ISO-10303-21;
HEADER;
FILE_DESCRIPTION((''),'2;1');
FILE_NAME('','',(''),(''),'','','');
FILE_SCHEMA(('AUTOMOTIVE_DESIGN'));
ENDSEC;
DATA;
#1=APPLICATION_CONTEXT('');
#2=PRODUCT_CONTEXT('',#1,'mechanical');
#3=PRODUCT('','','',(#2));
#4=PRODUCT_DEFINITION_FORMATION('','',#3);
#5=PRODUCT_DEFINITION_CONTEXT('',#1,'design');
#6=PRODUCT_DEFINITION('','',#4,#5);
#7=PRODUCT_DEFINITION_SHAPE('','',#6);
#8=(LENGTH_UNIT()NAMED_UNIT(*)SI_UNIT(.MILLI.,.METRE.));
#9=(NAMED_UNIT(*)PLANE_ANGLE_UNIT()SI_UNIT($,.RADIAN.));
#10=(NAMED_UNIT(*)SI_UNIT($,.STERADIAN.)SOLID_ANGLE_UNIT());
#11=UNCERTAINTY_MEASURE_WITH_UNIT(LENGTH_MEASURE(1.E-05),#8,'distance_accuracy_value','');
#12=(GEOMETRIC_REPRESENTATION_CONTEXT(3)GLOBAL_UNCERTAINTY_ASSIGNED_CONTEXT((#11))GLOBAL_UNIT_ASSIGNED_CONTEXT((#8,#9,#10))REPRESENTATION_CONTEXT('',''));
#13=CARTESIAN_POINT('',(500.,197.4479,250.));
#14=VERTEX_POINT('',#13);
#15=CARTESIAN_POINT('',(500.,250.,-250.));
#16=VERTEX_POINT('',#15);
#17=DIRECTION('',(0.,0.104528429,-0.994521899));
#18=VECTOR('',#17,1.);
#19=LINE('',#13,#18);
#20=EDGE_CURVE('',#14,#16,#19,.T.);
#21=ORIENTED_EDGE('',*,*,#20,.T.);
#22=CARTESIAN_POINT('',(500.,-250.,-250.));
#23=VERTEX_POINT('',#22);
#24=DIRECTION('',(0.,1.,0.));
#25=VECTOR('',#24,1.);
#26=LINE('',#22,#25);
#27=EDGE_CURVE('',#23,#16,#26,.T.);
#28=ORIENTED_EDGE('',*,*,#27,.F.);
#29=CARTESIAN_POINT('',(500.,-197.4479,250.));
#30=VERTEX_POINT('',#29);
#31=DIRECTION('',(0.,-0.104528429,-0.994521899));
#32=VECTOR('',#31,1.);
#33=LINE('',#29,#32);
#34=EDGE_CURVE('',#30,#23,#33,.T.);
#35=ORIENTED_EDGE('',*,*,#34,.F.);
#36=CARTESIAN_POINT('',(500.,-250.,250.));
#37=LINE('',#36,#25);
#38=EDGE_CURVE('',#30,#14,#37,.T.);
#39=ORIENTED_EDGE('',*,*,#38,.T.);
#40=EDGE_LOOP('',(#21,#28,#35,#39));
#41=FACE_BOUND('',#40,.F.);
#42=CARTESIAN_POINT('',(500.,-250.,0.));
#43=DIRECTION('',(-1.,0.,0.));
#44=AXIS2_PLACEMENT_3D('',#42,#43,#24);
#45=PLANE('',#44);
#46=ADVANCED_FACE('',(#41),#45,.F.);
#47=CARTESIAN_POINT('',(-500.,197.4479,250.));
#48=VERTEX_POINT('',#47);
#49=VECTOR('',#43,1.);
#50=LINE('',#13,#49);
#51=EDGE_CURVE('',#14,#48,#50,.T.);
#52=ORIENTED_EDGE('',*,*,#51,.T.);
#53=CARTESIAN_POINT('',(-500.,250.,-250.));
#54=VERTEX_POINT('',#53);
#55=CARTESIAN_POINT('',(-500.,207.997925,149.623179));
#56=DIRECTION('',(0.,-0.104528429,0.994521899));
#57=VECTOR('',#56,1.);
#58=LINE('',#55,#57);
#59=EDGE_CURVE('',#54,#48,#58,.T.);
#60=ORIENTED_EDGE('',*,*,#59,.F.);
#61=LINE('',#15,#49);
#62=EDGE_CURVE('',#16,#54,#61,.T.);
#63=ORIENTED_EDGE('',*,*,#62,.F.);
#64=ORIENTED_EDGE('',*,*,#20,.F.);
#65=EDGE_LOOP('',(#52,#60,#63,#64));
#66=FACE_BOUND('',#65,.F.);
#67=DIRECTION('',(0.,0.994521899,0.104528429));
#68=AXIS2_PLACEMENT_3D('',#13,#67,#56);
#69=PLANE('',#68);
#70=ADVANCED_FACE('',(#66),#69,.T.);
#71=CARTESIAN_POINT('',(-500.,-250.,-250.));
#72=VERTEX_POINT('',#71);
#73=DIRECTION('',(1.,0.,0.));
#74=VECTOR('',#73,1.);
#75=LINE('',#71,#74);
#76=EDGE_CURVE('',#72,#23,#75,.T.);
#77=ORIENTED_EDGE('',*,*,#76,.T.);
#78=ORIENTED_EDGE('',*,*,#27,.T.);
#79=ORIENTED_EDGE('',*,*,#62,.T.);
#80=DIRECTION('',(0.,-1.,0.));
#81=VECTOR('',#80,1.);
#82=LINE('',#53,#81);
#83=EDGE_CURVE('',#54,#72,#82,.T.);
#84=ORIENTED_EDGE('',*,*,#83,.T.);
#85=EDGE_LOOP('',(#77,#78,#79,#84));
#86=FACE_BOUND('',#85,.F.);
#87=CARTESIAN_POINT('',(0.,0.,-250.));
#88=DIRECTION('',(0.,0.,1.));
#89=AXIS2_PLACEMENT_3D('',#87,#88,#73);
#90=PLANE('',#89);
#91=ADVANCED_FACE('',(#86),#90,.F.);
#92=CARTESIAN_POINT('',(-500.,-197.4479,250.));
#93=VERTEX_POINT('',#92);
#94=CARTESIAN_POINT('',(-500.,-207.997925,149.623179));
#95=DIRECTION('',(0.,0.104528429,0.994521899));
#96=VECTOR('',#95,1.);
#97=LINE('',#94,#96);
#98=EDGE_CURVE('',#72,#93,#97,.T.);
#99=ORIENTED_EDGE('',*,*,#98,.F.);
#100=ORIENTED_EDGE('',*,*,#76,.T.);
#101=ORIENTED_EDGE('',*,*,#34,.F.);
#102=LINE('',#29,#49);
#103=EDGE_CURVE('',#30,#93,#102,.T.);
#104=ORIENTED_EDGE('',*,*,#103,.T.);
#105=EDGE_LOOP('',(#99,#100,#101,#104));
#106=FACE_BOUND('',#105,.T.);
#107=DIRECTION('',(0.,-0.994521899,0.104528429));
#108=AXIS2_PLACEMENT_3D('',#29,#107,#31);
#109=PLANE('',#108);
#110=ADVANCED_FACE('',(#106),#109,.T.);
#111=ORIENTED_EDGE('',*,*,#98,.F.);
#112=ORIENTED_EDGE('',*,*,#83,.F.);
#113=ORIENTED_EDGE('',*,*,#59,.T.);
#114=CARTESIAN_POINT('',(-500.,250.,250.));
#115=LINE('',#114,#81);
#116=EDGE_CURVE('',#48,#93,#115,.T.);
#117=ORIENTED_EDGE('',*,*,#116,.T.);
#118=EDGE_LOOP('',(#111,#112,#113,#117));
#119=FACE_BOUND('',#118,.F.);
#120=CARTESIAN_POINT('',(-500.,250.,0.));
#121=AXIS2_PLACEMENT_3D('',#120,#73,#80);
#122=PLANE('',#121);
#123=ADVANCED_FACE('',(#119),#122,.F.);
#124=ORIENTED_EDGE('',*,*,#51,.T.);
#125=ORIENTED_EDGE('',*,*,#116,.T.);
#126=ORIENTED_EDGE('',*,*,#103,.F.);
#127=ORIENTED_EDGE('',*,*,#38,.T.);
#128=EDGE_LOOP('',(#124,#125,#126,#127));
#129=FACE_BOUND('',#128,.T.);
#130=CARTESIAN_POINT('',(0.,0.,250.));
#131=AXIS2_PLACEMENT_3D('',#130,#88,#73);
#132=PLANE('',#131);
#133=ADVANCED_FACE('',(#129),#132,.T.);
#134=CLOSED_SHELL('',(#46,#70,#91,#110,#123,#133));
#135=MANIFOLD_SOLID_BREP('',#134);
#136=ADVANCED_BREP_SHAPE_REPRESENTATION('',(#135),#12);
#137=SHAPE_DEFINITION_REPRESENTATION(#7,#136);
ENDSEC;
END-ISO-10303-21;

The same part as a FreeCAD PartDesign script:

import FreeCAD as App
import Part
import Sketcher

V = App.Vector
Q = App.Units.Quantity

doc = App.newDocument("Part")
body = doc.addObject("PartDesign::Body", "Body")

sketch1 = body.newObject("Sketcher::SketchObject", "Sketch")
sketch1.AttachmentSupport = (doc.getObject("XY_Plane"), [""])
sketch1.MapMode = "FlatFace"
sketch1.addGeometry(Part.LineSegment(V(-500, 250, 0), V(-500, -250, 0)), False)
sketch1.addGeometry(Part.LineSegment(V(-500, -250, 0), V(500, -250, 0)), False)
sketch1.addGeometry(Part.LineSegment(V(500, -250, 0), V(500, 250, 0)), False)
sketch1.addGeometry(Part.LineSegment(V(500, 250, 0), V(-500, 250, 0)), False)
sketch1.addConstraint(Sketcher.Constraint("Coincident", 0, 2, 1, 1))
sketch1.addConstraint(Sketcher.Constraint("Coincident", 1, 2, 2, 1))
sketch1.addConstraint(Sketcher.Constraint("Coincident", 2, 2, 3, 1))
sketch1.addConstraint(Sketcher.Constraint("Coincident", 3, 2, 0, 1))
sketch1.addConstraint(Sketcher.Constraint("Vertical", 0))
sketch1.addConstraint(Sketcher.Constraint("Horizontal", 1))
sketch1.addConstraint(Sketcher.Constraint("Vertical", 2))
sketch1.addConstraint(Sketcher.Constraint("Horizontal", 3))
sketch1.addConstraint(Sketcher.Constraint("Symmetric", 0, 2, 2, 2, -1, 1))
sketch1.addConstraint(Sketcher.Constraint("DistanceX", 1, 1, 1, 2, 1000.0))
sketch1.addConstraint(Sketcher.Constraint("DistanceY", 0, 2, 0, 1, 500.0))
pad1 = body.newObject("PartDesign::Pad", "Pad")
pad1.Profile = sketch1
pad1.Length = 500
pad1.Midplane = True

sketch2 = body.newObject("Sketcher::SketchObject", "Sketch001")
sketch2.AttachmentSupport = (doc.getObject("YZ_Plane"), [""])
sketch2.MapMode = "FlatFace"
sketch2.AttachmentOffset = App.Placement(V(0, 0, 500), App.Rotation())
sketch2.addGeometry(Part.LineSegment(V(-250, -250, 0), V(-197, 250, 0)), False)
sketch2.addGeometry(Part.LineSegment(V(-197, 250, 0), V(-250, 250, 0)), False)
sketch2.addGeometry(Part.LineSegment(V(-250, 250, 0), V(-250, -250, 0)), False)
sketch2.addConstraint(Sketcher.Constraint("Coincident", 0, 2, 1, 1))
sketch2.addConstraint(Sketcher.Constraint("Coincident", 1, 2, 2, 1))
sketch2.addConstraint(Sketcher.Constraint("Coincident", 2, 2, 0, 1))
sketch2.addConstraint(Sketcher.Constraint("Horizontal", 1))
sketch2.addConstraint(Sketcher.Constraint("Vertical", 2))
sketch2.addConstraint(Sketcher.Constraint("DistanceY", 2, 2, 2, 1, 500.0))
sketch2.addConstraint(Sketcher.Constraint("Angle", 0, Q("84 deg")))
sketch2.addConstraint(Sketcher.Constraint("DistanceY", -1, 1, 0, 2, 250.0))
sketch2.addConstraint(Sketcher.Constraint("DistanceX", 1, 2, -1, 1, 250.0))
pocket1 = body.newObject("PartDesign::Pocket", "Pocket")
pocket1.Profile = sketch2
pocket1.Type = "UpToFirst"
doc.recompute()

mirrored = body.newObject("PartDesign::Mirrored", "Mirrored")
mirrored.Originals = [pocket1]
mirrored.MirrorPlane = (doc.getObject("XZ_Plane"), [""])
body.Tip = mirrored

doc.recompute()
